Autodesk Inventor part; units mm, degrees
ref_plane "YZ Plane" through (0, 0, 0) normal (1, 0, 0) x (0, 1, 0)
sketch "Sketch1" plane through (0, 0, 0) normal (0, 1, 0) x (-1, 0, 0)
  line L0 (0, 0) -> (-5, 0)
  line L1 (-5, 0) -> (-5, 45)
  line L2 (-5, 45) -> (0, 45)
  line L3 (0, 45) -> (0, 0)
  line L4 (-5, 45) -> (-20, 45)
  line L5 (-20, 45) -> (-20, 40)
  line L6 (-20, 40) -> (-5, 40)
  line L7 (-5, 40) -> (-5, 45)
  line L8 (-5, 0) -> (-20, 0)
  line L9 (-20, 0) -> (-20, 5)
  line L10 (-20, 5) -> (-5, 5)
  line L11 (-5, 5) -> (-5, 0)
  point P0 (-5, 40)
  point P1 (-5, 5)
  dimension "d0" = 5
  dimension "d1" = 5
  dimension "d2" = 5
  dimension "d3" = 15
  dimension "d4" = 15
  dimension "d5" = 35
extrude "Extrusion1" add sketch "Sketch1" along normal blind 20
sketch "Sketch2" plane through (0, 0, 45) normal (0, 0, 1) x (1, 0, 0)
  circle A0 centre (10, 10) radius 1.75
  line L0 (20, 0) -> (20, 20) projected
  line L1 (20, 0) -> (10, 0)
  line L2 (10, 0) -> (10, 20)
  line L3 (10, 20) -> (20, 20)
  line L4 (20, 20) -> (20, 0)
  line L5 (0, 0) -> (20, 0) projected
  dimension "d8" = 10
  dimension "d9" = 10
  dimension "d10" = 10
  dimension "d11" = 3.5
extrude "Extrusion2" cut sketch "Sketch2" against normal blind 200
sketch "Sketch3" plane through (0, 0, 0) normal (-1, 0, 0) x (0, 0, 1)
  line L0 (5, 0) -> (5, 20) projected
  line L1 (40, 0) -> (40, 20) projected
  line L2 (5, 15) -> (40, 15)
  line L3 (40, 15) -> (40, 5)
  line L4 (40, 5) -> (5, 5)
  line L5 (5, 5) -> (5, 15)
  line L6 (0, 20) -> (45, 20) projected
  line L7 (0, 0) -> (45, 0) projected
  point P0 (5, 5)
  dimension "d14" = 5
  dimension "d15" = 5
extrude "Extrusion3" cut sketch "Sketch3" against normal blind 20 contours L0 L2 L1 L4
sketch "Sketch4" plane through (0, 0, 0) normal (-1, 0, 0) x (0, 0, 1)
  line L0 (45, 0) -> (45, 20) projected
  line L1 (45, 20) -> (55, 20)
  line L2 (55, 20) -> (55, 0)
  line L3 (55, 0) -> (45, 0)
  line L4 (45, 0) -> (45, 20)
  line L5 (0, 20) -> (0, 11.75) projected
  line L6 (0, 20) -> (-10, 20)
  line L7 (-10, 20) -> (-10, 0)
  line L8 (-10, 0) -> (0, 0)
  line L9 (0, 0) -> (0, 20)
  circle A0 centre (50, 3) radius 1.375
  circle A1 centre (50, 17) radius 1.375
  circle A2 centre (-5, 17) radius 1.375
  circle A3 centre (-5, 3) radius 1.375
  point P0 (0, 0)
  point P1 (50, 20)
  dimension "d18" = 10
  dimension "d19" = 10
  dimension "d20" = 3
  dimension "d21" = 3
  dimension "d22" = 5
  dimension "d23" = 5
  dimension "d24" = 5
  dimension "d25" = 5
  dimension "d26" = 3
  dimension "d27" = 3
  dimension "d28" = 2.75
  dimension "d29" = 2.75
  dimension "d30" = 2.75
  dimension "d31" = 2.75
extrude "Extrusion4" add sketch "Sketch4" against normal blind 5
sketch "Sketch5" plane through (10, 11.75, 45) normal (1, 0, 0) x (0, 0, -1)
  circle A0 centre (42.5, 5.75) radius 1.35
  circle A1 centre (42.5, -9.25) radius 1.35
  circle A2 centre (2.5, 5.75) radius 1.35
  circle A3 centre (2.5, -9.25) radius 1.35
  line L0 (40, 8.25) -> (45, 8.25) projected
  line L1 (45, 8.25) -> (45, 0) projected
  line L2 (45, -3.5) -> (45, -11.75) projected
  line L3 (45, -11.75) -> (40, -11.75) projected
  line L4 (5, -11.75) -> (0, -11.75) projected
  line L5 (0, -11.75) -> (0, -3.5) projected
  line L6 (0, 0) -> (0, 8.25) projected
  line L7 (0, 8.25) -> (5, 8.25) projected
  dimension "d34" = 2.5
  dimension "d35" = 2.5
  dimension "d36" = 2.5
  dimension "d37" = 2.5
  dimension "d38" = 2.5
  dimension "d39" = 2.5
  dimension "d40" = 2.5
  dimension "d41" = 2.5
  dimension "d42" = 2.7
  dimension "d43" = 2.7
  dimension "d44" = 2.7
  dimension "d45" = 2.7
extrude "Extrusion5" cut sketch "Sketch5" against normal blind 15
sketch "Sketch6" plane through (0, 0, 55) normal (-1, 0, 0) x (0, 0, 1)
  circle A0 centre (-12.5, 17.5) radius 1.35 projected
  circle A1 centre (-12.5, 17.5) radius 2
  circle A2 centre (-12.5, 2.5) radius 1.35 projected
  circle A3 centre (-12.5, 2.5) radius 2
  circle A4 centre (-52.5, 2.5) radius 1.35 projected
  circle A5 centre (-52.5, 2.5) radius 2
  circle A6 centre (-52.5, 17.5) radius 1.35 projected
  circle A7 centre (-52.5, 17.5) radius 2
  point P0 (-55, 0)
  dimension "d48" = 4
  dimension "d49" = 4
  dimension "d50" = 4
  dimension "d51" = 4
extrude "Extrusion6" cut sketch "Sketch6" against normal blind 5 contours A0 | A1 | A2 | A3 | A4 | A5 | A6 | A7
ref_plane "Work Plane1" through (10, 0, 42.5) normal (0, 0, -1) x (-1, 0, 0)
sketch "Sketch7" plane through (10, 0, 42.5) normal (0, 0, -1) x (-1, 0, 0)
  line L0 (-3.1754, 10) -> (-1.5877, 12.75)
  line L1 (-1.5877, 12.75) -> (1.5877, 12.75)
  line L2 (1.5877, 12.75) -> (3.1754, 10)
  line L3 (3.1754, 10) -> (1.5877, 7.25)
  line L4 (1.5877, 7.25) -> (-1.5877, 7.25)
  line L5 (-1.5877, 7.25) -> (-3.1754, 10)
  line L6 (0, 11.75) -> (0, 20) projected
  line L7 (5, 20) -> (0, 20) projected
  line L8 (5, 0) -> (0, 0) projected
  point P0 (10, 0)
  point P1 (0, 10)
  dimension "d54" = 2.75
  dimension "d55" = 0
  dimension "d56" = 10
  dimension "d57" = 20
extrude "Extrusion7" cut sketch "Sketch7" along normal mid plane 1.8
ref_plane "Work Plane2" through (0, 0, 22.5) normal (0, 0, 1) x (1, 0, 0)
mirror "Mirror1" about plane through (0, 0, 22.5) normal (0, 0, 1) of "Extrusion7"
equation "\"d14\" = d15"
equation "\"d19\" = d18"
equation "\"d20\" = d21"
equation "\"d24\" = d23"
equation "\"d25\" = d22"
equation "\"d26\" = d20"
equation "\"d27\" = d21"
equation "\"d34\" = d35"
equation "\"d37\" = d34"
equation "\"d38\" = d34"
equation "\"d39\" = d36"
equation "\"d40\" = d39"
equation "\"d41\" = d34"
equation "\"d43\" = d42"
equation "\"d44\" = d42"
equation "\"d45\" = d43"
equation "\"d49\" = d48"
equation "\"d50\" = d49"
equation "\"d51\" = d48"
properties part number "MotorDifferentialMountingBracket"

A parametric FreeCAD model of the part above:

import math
import FreeCAD as App
import Part
import Sketcher

V = App.Vector
Q = App.Units.Quantity

doc = App.newDocument("Part")
body = doc.addObject("PartDesign::Body", "Body")

# Sketch on XZ plane
sketch1 = body.newObject("Sketcher::SketchObject", "Sketch")
sketch1.AttachmentSupport = (doc.getObject("XZ_Plane"), [""])
sketch1.MapMode = "FlatFace"
sketch1.addGeometry(Part.LineSegment(V(0, 0, 0), V(0, 45, 0)), False)
sketch1.addGeometry(Part.LineSegment(V(0, 45, 0), V(20, 45, 0)), False)
sketch1.addGeometry(Part.LineSegment(V(20, 45, 0), V(20, 40, 0)), False)
sketch1.addGeometry(Part.LineSegment(V(20, 40, 0), V(5, 40, 0)), False)
sketch1.addGeometry(Part.LineSegment(V(5, 40, 0), V(5, 5, 0)), False)
sketch1.addGeometry(Part.LineSegment(V(5, 5, 0), V(20, 5, 0)), False)
sketch1.addGeometry(Part.LineSegment(V(20, 5, 0), V(20, 0, 0)), False)
sketch1.addGeometry(Part.LineSegment(V(20, 0, 0), V(0, 0, 0)), False)
sketch1.addConstraint(Sketcher.Constraint("Coincident", 0, 2, 1, 1))
sketch1.addConstraint(Sketcher.Constraint("Coincident", 1, 2, 2, 1))
sketch1.addConstraint(Sketcher.Constraint("Coincident", 2, 2, 3, 1))
sketch1.addConstraint(Sketcher.Constraint("Coincident", 3, 2, 4, 1))
sketch1.addConstraint(Sketcher.Constraint("Coincident", 4, 2, 5, 1))
sketch1.addConstraint(Sketcher.Constraint("Coincident", 5, 2, 6, 1))
sketch1.addConstraint(Sketcher.Constraint("Coincident", 6, 2, 7, 1))
sketch1.addConstraint(Sketcher.Constraint("Coincident", 7, 2, 0, 1))
sketch1.addConstraint(Sketcher.Constraint("Vertical", 0))
sketch1.addConstraint(Sketcher.Constraint("Horizontal", 1))
sketch1.addConstraint(Sketcher.Constraint("Vertical", 2))
sketch1.addConstraint(Sketcher.Constraint("Horizontal", 3))
sketch1.addConstraint(Sketcher.Constraint("Vertical", 4))
sketch1.addConstraint(Sketcher.Constraint("Horizontal", 5))
sketch1.addConstraint(Sketcher.Constraint("Vertical", 6))
sketch1.addConstraint(Sketcher.Constraint("Horizontal", 7))
sketch1.addConstraint(Sketcher.Constraint("Coincident", 7, 2, -1, 1))
sketch1.addConstraint(Sketcher.Constraint("Vertical", 2, 2, 5, 2))
sketch1.addConstraint(Sketcher.Constraint("Equal", 2, 6))
sketch1.addConstraint(Sketcher.Constraint("DistanceX", 3, 2, 3, 1, 15.0))
sketch1.addConstraint(Sketcher.Constraint("DistanceY", 2, 2, 2, 1, 5.0))
sketch1.addConstraint(Sketcher.Constraint("DistanceY", 4, 2, 4, 1, 35.0))
sketch1.addConstraint(Sketcher.Constraint("DistanceX", -1, 1, 3, 2, 5.0))
pad1 = body.newObject("PartDesign::Pad", "Pad")
pad1.Profile = sketch1
pad1.Length = 20
pad1.Reversed = True

# Sketch on XY plane
sketch2 = body.newObject("Sketcher::SketchObject", "Sketch001")
sketch2.AttachmentSupport = (doc.getObject("XY_Plane"), [""])
sketch2.MapMode = "FlatFace"
sketch2.AttachmentOffset = App.Placement(V(0, 0, 45), App.Rotation())
sketch2.addGeometry(Part.LineSegment(V(10, 8.2, 0), V(10, 0, 0)), False)
sketch2.addGeometry(Part.LineSegment(V(10, 0, 0), V(20, 0, 0)), False)
sketch2.addGeometry(Part.LineSegment(V(20, 0, 0), V(20, 20, 0)), False)
sketch2.addGeometry(Part.LineSegment(V(20, 20, 0), V(10, 20, 0)), False)
sketch2.addGeometry(Part.LineSegment(V(10, 20, 0), V(10, 11.8, 0)), False)
sketch2.addGeometry(Part.ArcOfCircle(Part.Circle(V(10, 10, 0), V(0, 0, 1), 1.8), math.radians(90), math.radians(270)), False)
sketch2.addConstraint(Sketcher.Constraint("Coincident", 0, 2, 1, 1))
sketch2.addConstraint(Sketcher.Constraint("Coincident", 1, 2, 2, 1))
sketch2.addConstraint(Sketcher.Constraint("Coincident", 2, 2, 3, 1))
sketch2.addConstraint(Sketcher.Constraint("Coincident", 3, 2, 4, 1))
sketch2.addConstraint(Sketcher.Constraint("Coincident", 4, 2, 5, 1))
sketch2.addConstraint(Sketcher.Constraint("Coincident", 5, 2, 0, 1))
sketch2.addConstraint(Sketcher.Constraint("Vertical", 0))
sketch2.addConstraint(Sketcher.Constraint("Horizontal", 1))
sketch2.addConstraint(Sketcher.Constraint("Vertical", 2))
sketch2.addConstraint(Sketcher.Constraint("Horizontal", 3))
sketch2.addConstraint(Sketcher.Constraint("Vertical", 4))
sketch2.addConstraint(Sketcher.Constraint("PointOnObject", 0, 2, -1))
sketch2.addConstraint(Sketcher.Constraint("Vertical", 5, 3, 0, 2))
sketch2.addConstraint(Sketcher.Constraint("Vertical", 0, 2, 3, 2))
sketch2.addConstraint(Sketcher.Constraint("Equal", 0, 4))
sketch2.addConstraint(Sketcher.Constraint("DistanceX", 1, 1, 1, 2, 10.0))
sketch2.addConstraint(Sketcher.Constraint("Radius", 5, 1.75))
sketch2.addConstraint(Sketcher.Constraint("DistanceX", -1, 1, 5, 3, 10.0))
sketch2.addConstraint(Sketcher.Constraint("DistanceY", -1, 1, 5, 3, 10.0))
pocket1 = body.newObject("PartDesign::Pocket", "Pocket")
pocket1.Profile = sketch2
pocket1.Length = 200

# Sketch on YZ plane
sketch3 = body.newObject("Sketcher::SketchObject", "Sketch002")
sketch3.AttachmentSupport = (doc.getObject("YZ_Plane"), [""])
sketch3.MapMode = "FlatFace"
sketch3.addGeometry(Part.LineSegment(V(15, 5, 0), V(5, 5, 0)), False)
sketch3.addGeometry(Part.LineSegment(V(5, 5, 0), V(5, 40, 0)), False)
sketch3.addGeometry(Part.LineSegment(V(5, 40, 0), V(15, 40, 0)), False)
sketch3.addGeometry(Part.LineSegment(V(15, 40, 0), V(15, 5, 0)), False)
sketch3.addConstraint(Sketcher.Constraint("Coincident", 0, 2, 1, 1))
sketch3.addConstraint(Sketcher.Constraint("Coincident", 1, 2, 2, 1))
sketch3.addConstraint(Sketcher.Constraint("Coincident", 2, 2, 3, 1))
sketch3.addConstraint(Sketcher.Constraint("Coincident", 3, 2, 0, 1))
sketch3.addConstraint(Sketcher.Constraint("Horizontal", 0))
sketch3.addConstraint(Sketcher.Constraint("Vertical", 1))
sketch3.addConstraint(Sketcher.Constraint("Horizontal", 2))
sketch3.addConstraint(Sketcher.Constraint("Vertical", 3))
sketch3.addConstraint(Sketcher.Constraint("DistanceX", -1, 1, 0, 2, 5.0))
sketch3.addConstraint(Sketcher.Constraint("DistanceY", -1, 1, 0, 2, 5.0))
sketch3.addConstraint(Sketcher.Constraint("DistanceX", 0, 2, 0, 1, 10.0))
sketch3.addConstraint(Sketcher.Constraint("DistanceY", 1, 1, 1, 2, 35.0))
pocket2 = body.newObject("PartDesign::Pocket", "Pocket001")
pocket2.Profile = sketch3
pocket2.Length = 20
pocket2.Reversed = True

# Sketch on YZ plane
sketch4 = body.newObject("Sketcher::SketchObject", "Sketch003")
sketch4.AttachmentSupport = (doc.getObject("YZ_Plane"), [""])
sketch4.MapMode = "FlatFace"
sketch4.addGeometry(Part.LineSegment(V(20, 45, 0), V(0, 45, 0)), False)
sketch4.addGeometry(Part.LineSegment(V(0, 45, 0), V(0, 55, 0)), False)
sketch4.addGeometry(Part.LineSegment(V(0, 55, 0), V(20, 55, 0)), False)
sketch4.addGeometry(Part.LineSegment(V(20, 55, 0), V(20, 45, 0)), False)
sketch4.addGeometry(Part.Circle(V(3, 50, 0), V(0, 0, 1), 1.4), False)
sketch4.addGeometry(Part.Circle(V(17, 50, 0), V(0, 0, 1), 1.4), False)
sketch4.addGeometry(Part.LineSegment(V(0, 0, 0), V(20, 0, 0)), False)
sketch4.addGeometry(Part.LineSegment(V(20, 0, 0), V(20, -10, 0)), False)
sketch4.addGeometry(Part.LineSegment(V(20, -10, 0), V(0, -10, 0)), False)
sketch4.addGeometry(Part.LineSegment(V(0, -10, 0), V(0, 0, 0)), False)
sketch4.addGeometry(Part.Circle(V(3, -5, 0), V(0, 0, 1), 1.4), False)
sketch4.addGeometry(Part.Circle(V(17, -5, 0), V(0, 0, 1), 1.4), False)
sketch4.addConstraint(Sketcher.Constraint("Coincident", 0, 2, 1, 1))
sketch4.addConstraint(Sketcher.Constraint("Coincident", 1, 2, 2, 1))
sketch4.addConstraint(Sketcher.Constraint("Coincident", 2, 2, 3, 1))
sketch4.addConstraint(Sketcher.Constraint("Coincident", 3, 2, 0, 1))
sketch4.addConstraint(Sketcher.Constraint("Coincident", 6, 2, 7, 1))
sketch4.addConstraint(Sketcher.Constraint("Coincident", 7, 2, 8, 1))
sketch4.addConstraint(Sketcher.Constraint("Coincident", 8, 2, 9, 1))
sketch4.addConstraint(Sketcher.Constraint("Coincident", 9, 2, 6, 1))
sketch4.addConstraint(Sketcher.Constraint("Horizontal", 0))
sketch4.addConstraint(Sketcher.Constraint("Vertical", 1))
sketch4.addConstraint(Sketcher.Constraint("Horizontal", 2))
sketch4.addConstraint(Sketcher.Constraint("Vertical", 3))
sketch4.addConstraint(Sketcher.Constraint("Horizontal", 6))
sketch4.addConstraint(Sketcher.Constraint("Vertical", 7))
sketch4.addConstraint(Sketcher.Constraint("Horizontal", 8))
sketch4.addConstraint(Sketcher.Constraint("Vertical", 9))
sketch4.addConstraint(Sketcher.Constraint("Coincident", 9, 2, -1, 1))
sketch4.addConstraint(Sketcher.Constraint("Equal", 4, 5))
sketch4.addConstraint(Sketcher.Constraint("Equal", 5, 10))
sketch4.addConstraint(Sketcher.Constraint("Equal", 10, 11))
sketch4.addConstraint(Sketcher.Constraint("PointOnObject", 0, 2, -2))
sketch4.addConstraint(Sketcher.Constraint("Horizontal", 4, 3, 5, 3))
sketch4.addConstraint(Sketcher.Constraint("Horizontal", 10, 3, 11, 3))
sketch4.addConstraint(Sketcher.Constraint("Vertical", 4, 3, 10, 3))
sketch4.addConstraint(Sketcher.Constraint("Vertical", 5, 3, 11, 3))
sketch4.addConstraint(Sketcher.Constraint("Vertical", 3, 2, 6, 2))
sketch4.addConstraint(Sketcher.Constraint("Equal", 3, 7))
sketch4.addConstraint(Sketcher.Constraint("Diameter", 4, 2.75))
sketch4.addConstraint(Sketcher.Constraint("DistanceY", 1, 1, 1, 2, 10.0))
sketch4.addConstraint(Sketcher.Constraint("DistanceX", -1, 1, 4, 3, 3.0))
sketch4.addConstraint(Sketcher.Constraint("DistanceY", 10, 3, -1, 1, 5.0))
sketch4.addConstraint(Sketcher.Constraint("DistanceY", 0, 2, 4, 3, 5.0))
sketch4.addConstraint(Sketcher.Constraint("DistanceX", 5, 3, 2, 2, 3.0))
sketch4.addConstraint(Sketcher.Constraint("DistanceX", 0, 2, 0, 1, 20.0))
sketch4.addConstraint(Sketcher.Constraint("DistanceY", -1, 1, 4, 3, 50.0))
pad2 = body.newObject("PartDesign::Pad", "Pad001")
pad2.Profile = sketch4
pad2.Length = 5

# Sketch on YZ plane
sketch5 = body.newObject("Sketcher::SketchObject", "Sketch004")
sketch5.AttachmentSupport = (doc.getObject("YZ_Plane"), [""])
sketch5.MapMode = "FlatFace"
sketch5.AttachmentOffset = App.Placement(V(0, 0, 10), App.Rotation())
sketch5.addGeometry(Part.Circle(V(17.5, 2.5, 0), V(0, 0, 1), 1.4), False)
sketch5.addGeometry(Part.Circle(V(2.5, 2.5, 0), V(0, 0, 1), 1.4), False)
sketch5.addGeometry(Part.Circle(V(17.5, 42.5, 0), V(0, 0, 1), 1.4), False)
sketch5.addGeometry(Part.Circle(V(2.5, 42.5, 0), V(0, 0, 1), 1.4), False)
sketch5.addConstraint(Sketcher.Constraint("Equal", 0, 1))
sketch5.addConstraint(Sketcher.Constraint("Equal", 1, 2))
sketch5.addConstraint(Sketcher.Constraint("Equal", 2, 3))
sketch5.addConstraint(Sketcher.Constraint("Horizontal", 0, 3, 1, 3))
sketch5.addConstraint(Sketcher.Constraint("Horizontal", 2, 3, 3, 3))
sketch5.addConstraint(Sketcher.Constraint("Vertical", 0, 3, 2, 3))
sketch5.addConstraint(Sketcher.Constraint("Vertical", 1, 3, 3, 3))
sketch5.addConstraint(Sketcher.Constraint("Diameter", 0, 2.7))
sketch5.addConstraint(Sketcher.Constraint("DistanceY", -1, 1, 0, 3, 2.5))
sketch5.addConstraint(Sketcher.Constraint("DistanceX", -1, 1, 1, 3, 2.5))
sketch5.addConstraint(Sketcher.Constraint("DistanceX", 1, 3, 0, 3, 15.0))
sketch5.addConstraint(Sketcher.Constraint("DistanceY", 0, 3, 2, 3, 40.0))
pocket3 = body.newObject("PartDesign::Pocket", "Pocket002")
pocket3.Profile = sketch5
pocket3.Length = 15

# Sketch on YZ plane
sketch6 = body.newObject("Sketcher::SketchObject", "Sketch005")
sketch6.AttachmentSupport = (doc.getObject("YZ_Plane"), [""])
sketch6.MapMode = "FlatFace"
sketch6.addGeometry(Part.Circle(V(17.5, 42.5, 0), V(0, 0, 1), 2), False)
sketch6.addGeometry(Part.Circle(V(2.5, 42.5, 0), V(0, 0, 1), 2), False)
sketch6.addGeometry(Part.Circle(V(2.5, 2.5, 0), V(0, 0, 1), 2), False)
sketch6.addGeometry(Part.Circle(V(17.5, 2.5, 0), V(0, 0, 1), 2), False)
sketch6.addConstraint(Sketcher.Constraint("Equal", 0, 1))
sketch6.addConstraint(Sketcher.Constraint("Equal", 1, 2))
sketch6.addConstraint(Sketcher.Constraint("Equal", 2, 3))
sketch6.addConstraint(Sketcher.Constraint("Horizontal", 0, 3, 1, 3))
sketch6.addConstraint(Sketcher.Constraint("Horizontal", 2, 3, 3, 3))
sketch6.addConstraint(Sketcher.Constraint("Vertical", 1, 3, 2, 3))
sketch6.addConstraint(Sketcher.Constraint("Vertical", 0, 3, 3, 3))
sketch6.addConstraint(Sketcher.Constraint("Diameter", 0, 4.0))
sketch6.addConstraint(Sketcher.Constraint("DistanceX", 1, 3, 0, 3, 15.0))
sketch6.addConstraint(Sketcher.Constraint("DistanceY", 2, 3, 1, 3, 40.0))
sketch6.addConstraint(Sketcher.Constraint("DistanceX", -1, 1, 0, 3, 17.5))
sketch6.addConstraint(Sketcher.Constraint("DistanceY", -1, 1, 0, 3, 42.5))
pocket4 = body.newObject("PartDesign::Pocket", "Pocket003")
pocket4.Profile = sketch6
pocket4.Length = 5
pocket4.Reversed = True

# Sketch on XY plane
sketch7 = body.newObject("Sketcher::SketchObject", "Sketch006")
sketch7.AttachmentSupport = (doc.getObject("XY_Plane"), [""])
sketch7.MapMode = "FlatFace"
sketch7.AttachmentOffset = App.Placement(V(0, 0, 42.5), App.Rotation())
sketch7.addGeometry(Part.LineSegment(V(11.6, 12.8, 0), V(13.2, 10, 0)), False)
sketch7.addGeometry(Part.LineSegment(V(13.2, 10, 0), V(11.6, 7.2, 0)), False)
sketch7.addGeometry(Part.LineSegment(V(11.6, 7.2, 0), V(8.4, 7.2, 0)), False)
sketch7.addGeometry(Part.LineSegment(V(8.4, 7.2, 0), V(6.8, 10, 0)), False)
sketch7.addGeometry(Part.LineSegment(V(6.8, 10, 0), V(8.4, 12.8, 0)), False)
sketch7.addGeometry(Part.LineSegment(V(8.4, 12.8, 0), V(11.6, 12.8, 0)), False)
sketch7.addConstraint(Sketcher.Constraint("Coincident", 0, 2, 1, 1))
sketch7.addConstraint(Sketcher.Constraint("Coincident", 1, 2, 2, 1))
sketch7.addConstraint(Sketcher.Constraint("Coincident", 2, 2, 3, 1))
sketch7.addConstraint(Sketcher.Constraint("Coincident", 3, 2, 4, 1))
sketch7.addConstraint(Sketcher.Constraint("Coincident", 4, 2, 5, 1))
sketch7.addConstraint(Sketcher.Constraint("Coincident", 5, 2, 0, 1))
sketch7.addConstraint(Sketcher.Constraint("Horizontal", 2))
sketch7.addConstraint(Sketcher.Constraint("Horizontal", 5))
sketch7.addConstraint(Sketcher.Constraint("Parallel", 0, 3))
sketch7.addConstraint(Sketcher.Constraint("Parallel", 1, 4))
sketch7.addConstraint(Sketcher.Constraint("Horizontal", 0, 2, 3, 2))
sketch7.addConstraint(Sketcher.Constraint("Vertical", 2, 2, 4, 2))
sketch7.addConstraint(Sketcher.Constraint("Vertical", 1, 2, 5, 2))
sketch7.addConstraint(Sketcher.Constraint("DistanceY", -1, 1, 0, 2, 10.0))
sketch7.addConstraint(Sketcher.Constraint("Angle", 0, Q("-60.0002 deg")))
sketch7.addConstraint(Sketcher.Constraint("DistanceY", 1, 2, 0, 2, 2.75))
sketch7.addConstraint(Sketcher.Constraint("DistanceX", 2, 2, 2, 1, 3.1754))
sketch7.addConstraint(Sketcher.Constraint("DistanceX", -1, 1, 0, 2, 13.1754))
pocket5 = body.newObject("PartDesign::Pocket", "Pocket004")
pocket5.Profile = sketch7
pocket5.Length = 1.8
pocket5.Midplane = True
doc.recompute()

datumplane = body.newObject("PartDesign::Plane", "DatumPlane")
datumplane.AttachmentSupport = (doc.getObject("XY_Plane"), [""])
datumplane.MapMode = "FlatFace"
datumplane.AttachmentOffset = App.Placement(V(0, 0, 22.5), App.Rotation())
mirrored = body.newObject("PartDesign::Mirrored", "Mirrored")
mirrored.Originals = [pocket5]
mirrored.MirrorPlane = (datumplane, [""])
body.Tip = mirrored

doc.recompute()
